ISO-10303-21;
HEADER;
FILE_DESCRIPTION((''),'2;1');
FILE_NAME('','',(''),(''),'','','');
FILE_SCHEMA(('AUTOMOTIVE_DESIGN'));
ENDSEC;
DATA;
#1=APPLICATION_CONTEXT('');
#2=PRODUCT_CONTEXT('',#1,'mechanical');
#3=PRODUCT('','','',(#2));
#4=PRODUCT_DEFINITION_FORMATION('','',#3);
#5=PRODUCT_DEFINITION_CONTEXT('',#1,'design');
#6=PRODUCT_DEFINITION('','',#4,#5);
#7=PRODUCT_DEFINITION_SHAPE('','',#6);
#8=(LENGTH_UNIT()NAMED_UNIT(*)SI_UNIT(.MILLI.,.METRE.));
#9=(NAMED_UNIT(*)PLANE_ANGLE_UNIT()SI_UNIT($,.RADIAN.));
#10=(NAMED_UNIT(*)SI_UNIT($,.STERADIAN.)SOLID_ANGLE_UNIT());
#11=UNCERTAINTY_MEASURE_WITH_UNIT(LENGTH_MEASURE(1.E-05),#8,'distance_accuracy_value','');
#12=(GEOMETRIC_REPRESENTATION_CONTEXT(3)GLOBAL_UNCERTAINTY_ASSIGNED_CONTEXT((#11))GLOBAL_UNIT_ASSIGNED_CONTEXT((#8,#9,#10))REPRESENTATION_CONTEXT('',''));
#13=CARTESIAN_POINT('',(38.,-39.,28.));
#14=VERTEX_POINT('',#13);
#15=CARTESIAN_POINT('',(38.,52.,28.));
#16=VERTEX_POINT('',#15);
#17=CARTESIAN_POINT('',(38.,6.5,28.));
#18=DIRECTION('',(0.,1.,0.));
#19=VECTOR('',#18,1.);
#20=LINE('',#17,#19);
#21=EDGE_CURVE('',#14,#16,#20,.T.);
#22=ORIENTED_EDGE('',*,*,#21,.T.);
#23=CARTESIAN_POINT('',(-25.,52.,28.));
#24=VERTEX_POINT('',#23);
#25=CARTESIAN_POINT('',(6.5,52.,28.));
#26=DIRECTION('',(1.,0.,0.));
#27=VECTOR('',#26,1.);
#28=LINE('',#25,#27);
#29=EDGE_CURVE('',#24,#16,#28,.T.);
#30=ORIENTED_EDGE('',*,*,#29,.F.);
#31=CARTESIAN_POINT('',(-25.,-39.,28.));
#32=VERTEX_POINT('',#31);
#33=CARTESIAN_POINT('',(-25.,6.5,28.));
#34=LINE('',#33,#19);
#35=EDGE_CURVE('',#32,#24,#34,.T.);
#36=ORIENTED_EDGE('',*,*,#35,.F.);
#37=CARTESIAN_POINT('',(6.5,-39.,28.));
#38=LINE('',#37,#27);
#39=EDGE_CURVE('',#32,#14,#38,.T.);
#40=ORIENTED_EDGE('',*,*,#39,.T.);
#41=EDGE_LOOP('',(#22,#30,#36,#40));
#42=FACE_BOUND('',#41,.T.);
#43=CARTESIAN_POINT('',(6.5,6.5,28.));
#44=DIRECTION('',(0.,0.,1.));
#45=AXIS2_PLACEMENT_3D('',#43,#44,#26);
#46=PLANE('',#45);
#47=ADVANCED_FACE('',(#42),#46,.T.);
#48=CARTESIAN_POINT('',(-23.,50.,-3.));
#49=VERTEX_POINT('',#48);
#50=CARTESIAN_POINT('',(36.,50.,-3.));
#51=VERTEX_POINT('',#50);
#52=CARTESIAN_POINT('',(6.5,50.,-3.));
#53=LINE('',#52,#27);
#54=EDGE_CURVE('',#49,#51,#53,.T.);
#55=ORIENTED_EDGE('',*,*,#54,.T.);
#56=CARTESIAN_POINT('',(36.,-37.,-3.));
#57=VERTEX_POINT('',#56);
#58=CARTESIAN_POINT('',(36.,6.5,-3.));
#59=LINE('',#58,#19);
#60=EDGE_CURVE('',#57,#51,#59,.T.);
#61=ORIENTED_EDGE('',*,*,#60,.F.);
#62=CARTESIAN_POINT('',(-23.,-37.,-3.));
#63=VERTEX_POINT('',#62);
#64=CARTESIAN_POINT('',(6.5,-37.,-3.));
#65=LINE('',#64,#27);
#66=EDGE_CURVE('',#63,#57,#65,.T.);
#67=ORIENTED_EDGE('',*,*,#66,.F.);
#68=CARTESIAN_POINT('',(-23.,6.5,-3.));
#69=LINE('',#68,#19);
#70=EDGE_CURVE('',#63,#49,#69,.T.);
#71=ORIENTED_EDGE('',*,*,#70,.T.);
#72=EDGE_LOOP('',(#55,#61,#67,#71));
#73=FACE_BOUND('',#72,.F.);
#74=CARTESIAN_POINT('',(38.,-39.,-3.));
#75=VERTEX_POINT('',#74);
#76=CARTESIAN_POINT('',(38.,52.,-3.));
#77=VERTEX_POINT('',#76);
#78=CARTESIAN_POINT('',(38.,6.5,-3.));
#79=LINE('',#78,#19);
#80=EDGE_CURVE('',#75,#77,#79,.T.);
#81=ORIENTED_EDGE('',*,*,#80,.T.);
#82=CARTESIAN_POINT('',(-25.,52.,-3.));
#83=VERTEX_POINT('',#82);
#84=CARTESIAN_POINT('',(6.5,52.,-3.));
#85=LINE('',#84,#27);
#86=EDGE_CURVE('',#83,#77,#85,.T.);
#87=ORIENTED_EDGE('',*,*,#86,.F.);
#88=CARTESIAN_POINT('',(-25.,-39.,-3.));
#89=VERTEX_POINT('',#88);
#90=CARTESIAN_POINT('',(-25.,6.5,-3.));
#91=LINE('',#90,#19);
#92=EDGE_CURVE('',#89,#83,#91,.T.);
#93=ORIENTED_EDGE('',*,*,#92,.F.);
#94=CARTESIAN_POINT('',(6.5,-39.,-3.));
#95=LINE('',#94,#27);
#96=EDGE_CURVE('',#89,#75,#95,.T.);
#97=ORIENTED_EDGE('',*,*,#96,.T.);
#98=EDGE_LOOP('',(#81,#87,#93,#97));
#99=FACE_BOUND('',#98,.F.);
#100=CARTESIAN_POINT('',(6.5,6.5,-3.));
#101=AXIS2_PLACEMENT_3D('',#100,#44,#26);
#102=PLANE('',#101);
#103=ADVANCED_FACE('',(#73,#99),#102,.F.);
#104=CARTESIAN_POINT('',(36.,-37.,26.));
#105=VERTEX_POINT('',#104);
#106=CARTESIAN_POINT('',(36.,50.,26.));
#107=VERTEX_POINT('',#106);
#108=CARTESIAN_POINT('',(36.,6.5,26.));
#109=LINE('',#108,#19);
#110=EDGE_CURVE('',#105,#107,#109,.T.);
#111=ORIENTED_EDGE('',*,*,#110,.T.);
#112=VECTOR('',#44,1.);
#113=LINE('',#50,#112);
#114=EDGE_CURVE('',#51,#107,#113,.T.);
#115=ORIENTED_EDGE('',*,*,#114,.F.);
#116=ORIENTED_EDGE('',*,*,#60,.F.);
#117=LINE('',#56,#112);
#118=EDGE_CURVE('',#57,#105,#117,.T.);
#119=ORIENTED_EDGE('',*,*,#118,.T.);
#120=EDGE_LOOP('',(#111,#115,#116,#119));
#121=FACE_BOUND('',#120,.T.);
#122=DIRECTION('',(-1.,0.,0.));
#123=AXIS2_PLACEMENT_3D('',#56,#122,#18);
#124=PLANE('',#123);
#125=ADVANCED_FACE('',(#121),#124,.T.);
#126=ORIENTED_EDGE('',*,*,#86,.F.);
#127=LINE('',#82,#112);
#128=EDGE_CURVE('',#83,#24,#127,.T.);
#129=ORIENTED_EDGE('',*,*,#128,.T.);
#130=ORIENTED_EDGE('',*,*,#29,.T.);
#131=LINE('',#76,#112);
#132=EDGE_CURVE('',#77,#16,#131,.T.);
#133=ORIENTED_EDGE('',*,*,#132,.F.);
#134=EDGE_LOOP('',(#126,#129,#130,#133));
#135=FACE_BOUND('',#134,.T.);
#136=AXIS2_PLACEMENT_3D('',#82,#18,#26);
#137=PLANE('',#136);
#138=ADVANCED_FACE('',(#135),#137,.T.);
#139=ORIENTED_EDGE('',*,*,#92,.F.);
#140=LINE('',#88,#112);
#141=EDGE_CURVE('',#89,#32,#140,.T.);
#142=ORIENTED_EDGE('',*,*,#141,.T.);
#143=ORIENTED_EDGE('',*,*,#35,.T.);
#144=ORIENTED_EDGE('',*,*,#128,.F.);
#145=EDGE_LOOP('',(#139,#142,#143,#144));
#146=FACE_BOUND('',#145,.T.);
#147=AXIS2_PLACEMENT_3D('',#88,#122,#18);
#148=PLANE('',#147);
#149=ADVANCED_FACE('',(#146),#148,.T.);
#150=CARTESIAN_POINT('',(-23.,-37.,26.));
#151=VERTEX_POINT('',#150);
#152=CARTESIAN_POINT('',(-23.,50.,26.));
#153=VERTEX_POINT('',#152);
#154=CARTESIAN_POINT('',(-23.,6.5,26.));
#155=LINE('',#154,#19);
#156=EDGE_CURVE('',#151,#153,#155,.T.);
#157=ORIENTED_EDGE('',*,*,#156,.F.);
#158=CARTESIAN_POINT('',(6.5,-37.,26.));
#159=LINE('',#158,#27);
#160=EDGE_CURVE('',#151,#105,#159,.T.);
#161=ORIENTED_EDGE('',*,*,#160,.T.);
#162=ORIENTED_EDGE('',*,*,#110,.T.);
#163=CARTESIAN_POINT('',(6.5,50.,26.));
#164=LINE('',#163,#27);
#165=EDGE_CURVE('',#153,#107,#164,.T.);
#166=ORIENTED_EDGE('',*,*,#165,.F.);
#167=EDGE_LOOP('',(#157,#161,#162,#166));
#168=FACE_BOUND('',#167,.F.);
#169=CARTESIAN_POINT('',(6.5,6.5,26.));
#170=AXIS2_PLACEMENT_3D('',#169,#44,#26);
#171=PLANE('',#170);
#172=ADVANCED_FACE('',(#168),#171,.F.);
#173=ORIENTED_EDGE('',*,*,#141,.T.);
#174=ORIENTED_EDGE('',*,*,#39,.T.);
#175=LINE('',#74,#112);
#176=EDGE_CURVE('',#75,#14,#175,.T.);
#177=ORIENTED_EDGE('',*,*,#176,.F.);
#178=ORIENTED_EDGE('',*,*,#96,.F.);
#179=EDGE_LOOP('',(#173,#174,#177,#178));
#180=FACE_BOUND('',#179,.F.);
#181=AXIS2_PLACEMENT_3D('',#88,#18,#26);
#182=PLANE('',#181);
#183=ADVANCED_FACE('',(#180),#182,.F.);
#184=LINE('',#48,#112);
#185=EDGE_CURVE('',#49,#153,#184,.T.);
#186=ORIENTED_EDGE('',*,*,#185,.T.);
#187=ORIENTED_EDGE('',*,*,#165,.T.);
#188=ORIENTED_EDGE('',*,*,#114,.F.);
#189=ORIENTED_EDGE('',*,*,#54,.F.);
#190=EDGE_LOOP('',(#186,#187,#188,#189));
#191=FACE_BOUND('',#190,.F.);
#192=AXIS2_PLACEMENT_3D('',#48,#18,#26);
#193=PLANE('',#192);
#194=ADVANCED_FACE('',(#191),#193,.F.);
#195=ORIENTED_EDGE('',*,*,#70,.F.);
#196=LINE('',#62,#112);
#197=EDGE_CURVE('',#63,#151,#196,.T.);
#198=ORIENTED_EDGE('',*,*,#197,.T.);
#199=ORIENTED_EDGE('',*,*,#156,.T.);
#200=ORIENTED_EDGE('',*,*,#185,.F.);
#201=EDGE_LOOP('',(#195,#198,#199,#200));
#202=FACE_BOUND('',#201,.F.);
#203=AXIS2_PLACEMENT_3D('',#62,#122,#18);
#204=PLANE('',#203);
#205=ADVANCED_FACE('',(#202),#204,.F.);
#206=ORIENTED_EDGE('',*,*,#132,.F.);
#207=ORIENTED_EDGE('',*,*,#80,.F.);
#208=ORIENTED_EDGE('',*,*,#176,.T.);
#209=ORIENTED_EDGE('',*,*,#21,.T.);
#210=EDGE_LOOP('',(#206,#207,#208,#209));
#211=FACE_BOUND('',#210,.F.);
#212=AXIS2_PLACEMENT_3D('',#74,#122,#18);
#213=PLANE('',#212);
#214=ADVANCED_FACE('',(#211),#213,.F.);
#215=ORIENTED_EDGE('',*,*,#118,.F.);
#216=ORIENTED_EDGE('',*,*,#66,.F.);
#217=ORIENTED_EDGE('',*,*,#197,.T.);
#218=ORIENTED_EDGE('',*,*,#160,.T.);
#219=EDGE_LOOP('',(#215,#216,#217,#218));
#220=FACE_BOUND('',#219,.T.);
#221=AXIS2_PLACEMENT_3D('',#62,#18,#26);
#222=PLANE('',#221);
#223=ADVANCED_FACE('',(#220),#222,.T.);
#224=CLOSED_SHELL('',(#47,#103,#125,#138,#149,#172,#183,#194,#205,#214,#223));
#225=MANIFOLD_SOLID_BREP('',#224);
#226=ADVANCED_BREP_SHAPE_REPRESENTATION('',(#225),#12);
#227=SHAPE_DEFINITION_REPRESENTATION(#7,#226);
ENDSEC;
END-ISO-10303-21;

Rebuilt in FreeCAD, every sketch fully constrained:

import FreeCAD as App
import Part
import Sketcher
Q = App.Units.Quantity

doc = App.newDocument("Part")
body = doc.addObject("PartDesign::Body", "Body")

# Sketch on XY plane
sketch1 = body.newObject("Sketcher::SketchObject", "Sketch")
sketch1.AttachmentSupport = (doc.getObject("XY_Plane"), [""])
sketch1.MapMode = "FlatFace"
sketch1.AttachmentOffset = App.Placement(App.Vector(0, 0, -3), App.Rotation())
sketch1.addGeometry(Part.LineSegment(App.Vector(-23, 48, 0), App.Vector(-23, -39, 0)), False)
sketch1.addGeometry(Part.LineSegment(App.Vector(-23, -39, 0), App.Vector(36, -39, 0)), False)
sketch1.addGeometry(Part.LineSegment(App.Vector(36, -39, 0), App.Vector(36, 48, 0)), False)
sketch1.addGeometry(Part.LineSegment(App.Vector(36, 48, 0), App.Vector(-23, 48, 0)), False)
sketch1.addConstraint(Sketcher.Constraint("Coincident", 0, 2, 1, 1))
sketch1.addConstraint(Sketcher.Constraint("Coincident", 1, 2, 2, 1))
sketch1.addConstraint(Sketcher.Constraint("Coincident", 2, 2, 3, 1))
sketch1.addConstraint(Sketcher.Constraint("Coincident", 3, 2, 0, 1))
sketch1.addConstraint(Sketcher.Constraint("Vertical", 0))
sketch1.addConstraint(Sketcher.Constraint("Horizontal", 1))
sketch1.addConstraint(Sketcher.Constraint("Vertical", 2))
sketch1.addConstraint(Sketcher.Constraint("Horizontal", 3))
sketch1.addConstraint(Sketcher.Constraint("DistanceX", 1, 1, 1, 2, Q("59 mm")))
sketch1.addConstraint(Sketcher.Constraint("DistanceY", 0, 2, 0, 1, Q("87 mm")))
sketch1.addConstraint(Sketcher.Constraint("DistanceX", 0, 2, -1, 1, Q("23 mm")))
sketch1.addConstraint(Sketcher.Constraint("DistanceY", 0, 2, -1, 1, Q("39 mm")))
pad1 = body.newObject("PartDesign::Pad", "Pad")
pad1.Profile = sketch1
pad1.Length = 29
body2 = doc.addObject("PartDesign::Body", "Body001")

# Sketch on XY plane
sketch2 = body2.newObject("Sketcher::SketchObject", "Sketch001")
sketch2.AttachmentSupport = (doc.getObject("XY_Plane001"), [""])
sketch2.MapMode = "FlatFace"
sketch2.AttachmentOffset = App.Placement(App.Vector(0, 0, -3), App.Rotation())
sketch2.addGeometry(Part.LineSegment(App.Vector(-25, 50, 0), App.Vector(-25, -41, 0)), False)
sketch2.addGeometry(Part.LineSegment(App.Vector(-25, -41, 0), App.Vector(38, -41, 0)), False)
sketch2.addGeometry(Part.LineSegment(App.Vector(38, -41, 0), App.Vector(38, 50, 0)), False)
sketch2.addGeometry(Part.LineSegment(App.Vector(38, 50, 0), App.Vector(-25, 50, 0)), False)
sketch2.addConstraint(Sketcher.Constraint("Coincident", 0, 2, 1, 1))
sketch2.addConstraint(Sketcher.Constraint("Coincident", 1, 2, 2, 1))
sketch2.addConstraint(Sketcher.Constraint("Coincident", 2, 2, 3, 1))
sketch2.addConstraint(Sketcher.Constraint("Coincident", 3, 2, 0, 1))
sketch2.addConstraint(Sketcher.Constraint("Vertical", 0))
sketch2.addConstraint(Sketcher.Constraint("Horizontal", 1))
sketch2.addConstraint(Sketcher.Constraint("Vertical", 2))
sketch2.addConstraint(Sketcher.Constraint("Horizontal", 3))
sketch2.addConstraint(Sketcher.Constraint("DistanceX", 1, 1, 1, 2, Q("63 mm")))
sketch2.addConstraint(Sketcher.Constraint("DistanceY", 0, 2, 0, 1, Q("91 mm")))
sketch2.addConstraint(Sketcher.Constraint("DistanceX", 0, 2, -1, 1, Q("25 mm")))
sketch2.addConstraint(Sketcher.Constraint("DistanceY", 0, 2, -1, 1, Q("41 mm")))
pad2 = body2.newObject("PartDesign::Pad", "Pad001")
pad2.Profile = sketch2
pad2.Length = 31
doc.recompute()

boolean = body2.newObject("PartDesign::Boolean", "Boolean")
boolean.Type = "Cut"
boolean.addObjects([body])
body3 = doc.addObject("PartDesign::Body", "Body002")
doc.recompute()

body2.Placement = App.Placement(App.Vector(0, 2, 0), App.Rotation(App.Vector(0, 0, 1), 0))
boolean2 = body3.newObject("PartDesign::Boolean", "Boolean001")
boolean2.Type = "Fuse"
boolean2.addObjects([body2])

doc.recompute()
